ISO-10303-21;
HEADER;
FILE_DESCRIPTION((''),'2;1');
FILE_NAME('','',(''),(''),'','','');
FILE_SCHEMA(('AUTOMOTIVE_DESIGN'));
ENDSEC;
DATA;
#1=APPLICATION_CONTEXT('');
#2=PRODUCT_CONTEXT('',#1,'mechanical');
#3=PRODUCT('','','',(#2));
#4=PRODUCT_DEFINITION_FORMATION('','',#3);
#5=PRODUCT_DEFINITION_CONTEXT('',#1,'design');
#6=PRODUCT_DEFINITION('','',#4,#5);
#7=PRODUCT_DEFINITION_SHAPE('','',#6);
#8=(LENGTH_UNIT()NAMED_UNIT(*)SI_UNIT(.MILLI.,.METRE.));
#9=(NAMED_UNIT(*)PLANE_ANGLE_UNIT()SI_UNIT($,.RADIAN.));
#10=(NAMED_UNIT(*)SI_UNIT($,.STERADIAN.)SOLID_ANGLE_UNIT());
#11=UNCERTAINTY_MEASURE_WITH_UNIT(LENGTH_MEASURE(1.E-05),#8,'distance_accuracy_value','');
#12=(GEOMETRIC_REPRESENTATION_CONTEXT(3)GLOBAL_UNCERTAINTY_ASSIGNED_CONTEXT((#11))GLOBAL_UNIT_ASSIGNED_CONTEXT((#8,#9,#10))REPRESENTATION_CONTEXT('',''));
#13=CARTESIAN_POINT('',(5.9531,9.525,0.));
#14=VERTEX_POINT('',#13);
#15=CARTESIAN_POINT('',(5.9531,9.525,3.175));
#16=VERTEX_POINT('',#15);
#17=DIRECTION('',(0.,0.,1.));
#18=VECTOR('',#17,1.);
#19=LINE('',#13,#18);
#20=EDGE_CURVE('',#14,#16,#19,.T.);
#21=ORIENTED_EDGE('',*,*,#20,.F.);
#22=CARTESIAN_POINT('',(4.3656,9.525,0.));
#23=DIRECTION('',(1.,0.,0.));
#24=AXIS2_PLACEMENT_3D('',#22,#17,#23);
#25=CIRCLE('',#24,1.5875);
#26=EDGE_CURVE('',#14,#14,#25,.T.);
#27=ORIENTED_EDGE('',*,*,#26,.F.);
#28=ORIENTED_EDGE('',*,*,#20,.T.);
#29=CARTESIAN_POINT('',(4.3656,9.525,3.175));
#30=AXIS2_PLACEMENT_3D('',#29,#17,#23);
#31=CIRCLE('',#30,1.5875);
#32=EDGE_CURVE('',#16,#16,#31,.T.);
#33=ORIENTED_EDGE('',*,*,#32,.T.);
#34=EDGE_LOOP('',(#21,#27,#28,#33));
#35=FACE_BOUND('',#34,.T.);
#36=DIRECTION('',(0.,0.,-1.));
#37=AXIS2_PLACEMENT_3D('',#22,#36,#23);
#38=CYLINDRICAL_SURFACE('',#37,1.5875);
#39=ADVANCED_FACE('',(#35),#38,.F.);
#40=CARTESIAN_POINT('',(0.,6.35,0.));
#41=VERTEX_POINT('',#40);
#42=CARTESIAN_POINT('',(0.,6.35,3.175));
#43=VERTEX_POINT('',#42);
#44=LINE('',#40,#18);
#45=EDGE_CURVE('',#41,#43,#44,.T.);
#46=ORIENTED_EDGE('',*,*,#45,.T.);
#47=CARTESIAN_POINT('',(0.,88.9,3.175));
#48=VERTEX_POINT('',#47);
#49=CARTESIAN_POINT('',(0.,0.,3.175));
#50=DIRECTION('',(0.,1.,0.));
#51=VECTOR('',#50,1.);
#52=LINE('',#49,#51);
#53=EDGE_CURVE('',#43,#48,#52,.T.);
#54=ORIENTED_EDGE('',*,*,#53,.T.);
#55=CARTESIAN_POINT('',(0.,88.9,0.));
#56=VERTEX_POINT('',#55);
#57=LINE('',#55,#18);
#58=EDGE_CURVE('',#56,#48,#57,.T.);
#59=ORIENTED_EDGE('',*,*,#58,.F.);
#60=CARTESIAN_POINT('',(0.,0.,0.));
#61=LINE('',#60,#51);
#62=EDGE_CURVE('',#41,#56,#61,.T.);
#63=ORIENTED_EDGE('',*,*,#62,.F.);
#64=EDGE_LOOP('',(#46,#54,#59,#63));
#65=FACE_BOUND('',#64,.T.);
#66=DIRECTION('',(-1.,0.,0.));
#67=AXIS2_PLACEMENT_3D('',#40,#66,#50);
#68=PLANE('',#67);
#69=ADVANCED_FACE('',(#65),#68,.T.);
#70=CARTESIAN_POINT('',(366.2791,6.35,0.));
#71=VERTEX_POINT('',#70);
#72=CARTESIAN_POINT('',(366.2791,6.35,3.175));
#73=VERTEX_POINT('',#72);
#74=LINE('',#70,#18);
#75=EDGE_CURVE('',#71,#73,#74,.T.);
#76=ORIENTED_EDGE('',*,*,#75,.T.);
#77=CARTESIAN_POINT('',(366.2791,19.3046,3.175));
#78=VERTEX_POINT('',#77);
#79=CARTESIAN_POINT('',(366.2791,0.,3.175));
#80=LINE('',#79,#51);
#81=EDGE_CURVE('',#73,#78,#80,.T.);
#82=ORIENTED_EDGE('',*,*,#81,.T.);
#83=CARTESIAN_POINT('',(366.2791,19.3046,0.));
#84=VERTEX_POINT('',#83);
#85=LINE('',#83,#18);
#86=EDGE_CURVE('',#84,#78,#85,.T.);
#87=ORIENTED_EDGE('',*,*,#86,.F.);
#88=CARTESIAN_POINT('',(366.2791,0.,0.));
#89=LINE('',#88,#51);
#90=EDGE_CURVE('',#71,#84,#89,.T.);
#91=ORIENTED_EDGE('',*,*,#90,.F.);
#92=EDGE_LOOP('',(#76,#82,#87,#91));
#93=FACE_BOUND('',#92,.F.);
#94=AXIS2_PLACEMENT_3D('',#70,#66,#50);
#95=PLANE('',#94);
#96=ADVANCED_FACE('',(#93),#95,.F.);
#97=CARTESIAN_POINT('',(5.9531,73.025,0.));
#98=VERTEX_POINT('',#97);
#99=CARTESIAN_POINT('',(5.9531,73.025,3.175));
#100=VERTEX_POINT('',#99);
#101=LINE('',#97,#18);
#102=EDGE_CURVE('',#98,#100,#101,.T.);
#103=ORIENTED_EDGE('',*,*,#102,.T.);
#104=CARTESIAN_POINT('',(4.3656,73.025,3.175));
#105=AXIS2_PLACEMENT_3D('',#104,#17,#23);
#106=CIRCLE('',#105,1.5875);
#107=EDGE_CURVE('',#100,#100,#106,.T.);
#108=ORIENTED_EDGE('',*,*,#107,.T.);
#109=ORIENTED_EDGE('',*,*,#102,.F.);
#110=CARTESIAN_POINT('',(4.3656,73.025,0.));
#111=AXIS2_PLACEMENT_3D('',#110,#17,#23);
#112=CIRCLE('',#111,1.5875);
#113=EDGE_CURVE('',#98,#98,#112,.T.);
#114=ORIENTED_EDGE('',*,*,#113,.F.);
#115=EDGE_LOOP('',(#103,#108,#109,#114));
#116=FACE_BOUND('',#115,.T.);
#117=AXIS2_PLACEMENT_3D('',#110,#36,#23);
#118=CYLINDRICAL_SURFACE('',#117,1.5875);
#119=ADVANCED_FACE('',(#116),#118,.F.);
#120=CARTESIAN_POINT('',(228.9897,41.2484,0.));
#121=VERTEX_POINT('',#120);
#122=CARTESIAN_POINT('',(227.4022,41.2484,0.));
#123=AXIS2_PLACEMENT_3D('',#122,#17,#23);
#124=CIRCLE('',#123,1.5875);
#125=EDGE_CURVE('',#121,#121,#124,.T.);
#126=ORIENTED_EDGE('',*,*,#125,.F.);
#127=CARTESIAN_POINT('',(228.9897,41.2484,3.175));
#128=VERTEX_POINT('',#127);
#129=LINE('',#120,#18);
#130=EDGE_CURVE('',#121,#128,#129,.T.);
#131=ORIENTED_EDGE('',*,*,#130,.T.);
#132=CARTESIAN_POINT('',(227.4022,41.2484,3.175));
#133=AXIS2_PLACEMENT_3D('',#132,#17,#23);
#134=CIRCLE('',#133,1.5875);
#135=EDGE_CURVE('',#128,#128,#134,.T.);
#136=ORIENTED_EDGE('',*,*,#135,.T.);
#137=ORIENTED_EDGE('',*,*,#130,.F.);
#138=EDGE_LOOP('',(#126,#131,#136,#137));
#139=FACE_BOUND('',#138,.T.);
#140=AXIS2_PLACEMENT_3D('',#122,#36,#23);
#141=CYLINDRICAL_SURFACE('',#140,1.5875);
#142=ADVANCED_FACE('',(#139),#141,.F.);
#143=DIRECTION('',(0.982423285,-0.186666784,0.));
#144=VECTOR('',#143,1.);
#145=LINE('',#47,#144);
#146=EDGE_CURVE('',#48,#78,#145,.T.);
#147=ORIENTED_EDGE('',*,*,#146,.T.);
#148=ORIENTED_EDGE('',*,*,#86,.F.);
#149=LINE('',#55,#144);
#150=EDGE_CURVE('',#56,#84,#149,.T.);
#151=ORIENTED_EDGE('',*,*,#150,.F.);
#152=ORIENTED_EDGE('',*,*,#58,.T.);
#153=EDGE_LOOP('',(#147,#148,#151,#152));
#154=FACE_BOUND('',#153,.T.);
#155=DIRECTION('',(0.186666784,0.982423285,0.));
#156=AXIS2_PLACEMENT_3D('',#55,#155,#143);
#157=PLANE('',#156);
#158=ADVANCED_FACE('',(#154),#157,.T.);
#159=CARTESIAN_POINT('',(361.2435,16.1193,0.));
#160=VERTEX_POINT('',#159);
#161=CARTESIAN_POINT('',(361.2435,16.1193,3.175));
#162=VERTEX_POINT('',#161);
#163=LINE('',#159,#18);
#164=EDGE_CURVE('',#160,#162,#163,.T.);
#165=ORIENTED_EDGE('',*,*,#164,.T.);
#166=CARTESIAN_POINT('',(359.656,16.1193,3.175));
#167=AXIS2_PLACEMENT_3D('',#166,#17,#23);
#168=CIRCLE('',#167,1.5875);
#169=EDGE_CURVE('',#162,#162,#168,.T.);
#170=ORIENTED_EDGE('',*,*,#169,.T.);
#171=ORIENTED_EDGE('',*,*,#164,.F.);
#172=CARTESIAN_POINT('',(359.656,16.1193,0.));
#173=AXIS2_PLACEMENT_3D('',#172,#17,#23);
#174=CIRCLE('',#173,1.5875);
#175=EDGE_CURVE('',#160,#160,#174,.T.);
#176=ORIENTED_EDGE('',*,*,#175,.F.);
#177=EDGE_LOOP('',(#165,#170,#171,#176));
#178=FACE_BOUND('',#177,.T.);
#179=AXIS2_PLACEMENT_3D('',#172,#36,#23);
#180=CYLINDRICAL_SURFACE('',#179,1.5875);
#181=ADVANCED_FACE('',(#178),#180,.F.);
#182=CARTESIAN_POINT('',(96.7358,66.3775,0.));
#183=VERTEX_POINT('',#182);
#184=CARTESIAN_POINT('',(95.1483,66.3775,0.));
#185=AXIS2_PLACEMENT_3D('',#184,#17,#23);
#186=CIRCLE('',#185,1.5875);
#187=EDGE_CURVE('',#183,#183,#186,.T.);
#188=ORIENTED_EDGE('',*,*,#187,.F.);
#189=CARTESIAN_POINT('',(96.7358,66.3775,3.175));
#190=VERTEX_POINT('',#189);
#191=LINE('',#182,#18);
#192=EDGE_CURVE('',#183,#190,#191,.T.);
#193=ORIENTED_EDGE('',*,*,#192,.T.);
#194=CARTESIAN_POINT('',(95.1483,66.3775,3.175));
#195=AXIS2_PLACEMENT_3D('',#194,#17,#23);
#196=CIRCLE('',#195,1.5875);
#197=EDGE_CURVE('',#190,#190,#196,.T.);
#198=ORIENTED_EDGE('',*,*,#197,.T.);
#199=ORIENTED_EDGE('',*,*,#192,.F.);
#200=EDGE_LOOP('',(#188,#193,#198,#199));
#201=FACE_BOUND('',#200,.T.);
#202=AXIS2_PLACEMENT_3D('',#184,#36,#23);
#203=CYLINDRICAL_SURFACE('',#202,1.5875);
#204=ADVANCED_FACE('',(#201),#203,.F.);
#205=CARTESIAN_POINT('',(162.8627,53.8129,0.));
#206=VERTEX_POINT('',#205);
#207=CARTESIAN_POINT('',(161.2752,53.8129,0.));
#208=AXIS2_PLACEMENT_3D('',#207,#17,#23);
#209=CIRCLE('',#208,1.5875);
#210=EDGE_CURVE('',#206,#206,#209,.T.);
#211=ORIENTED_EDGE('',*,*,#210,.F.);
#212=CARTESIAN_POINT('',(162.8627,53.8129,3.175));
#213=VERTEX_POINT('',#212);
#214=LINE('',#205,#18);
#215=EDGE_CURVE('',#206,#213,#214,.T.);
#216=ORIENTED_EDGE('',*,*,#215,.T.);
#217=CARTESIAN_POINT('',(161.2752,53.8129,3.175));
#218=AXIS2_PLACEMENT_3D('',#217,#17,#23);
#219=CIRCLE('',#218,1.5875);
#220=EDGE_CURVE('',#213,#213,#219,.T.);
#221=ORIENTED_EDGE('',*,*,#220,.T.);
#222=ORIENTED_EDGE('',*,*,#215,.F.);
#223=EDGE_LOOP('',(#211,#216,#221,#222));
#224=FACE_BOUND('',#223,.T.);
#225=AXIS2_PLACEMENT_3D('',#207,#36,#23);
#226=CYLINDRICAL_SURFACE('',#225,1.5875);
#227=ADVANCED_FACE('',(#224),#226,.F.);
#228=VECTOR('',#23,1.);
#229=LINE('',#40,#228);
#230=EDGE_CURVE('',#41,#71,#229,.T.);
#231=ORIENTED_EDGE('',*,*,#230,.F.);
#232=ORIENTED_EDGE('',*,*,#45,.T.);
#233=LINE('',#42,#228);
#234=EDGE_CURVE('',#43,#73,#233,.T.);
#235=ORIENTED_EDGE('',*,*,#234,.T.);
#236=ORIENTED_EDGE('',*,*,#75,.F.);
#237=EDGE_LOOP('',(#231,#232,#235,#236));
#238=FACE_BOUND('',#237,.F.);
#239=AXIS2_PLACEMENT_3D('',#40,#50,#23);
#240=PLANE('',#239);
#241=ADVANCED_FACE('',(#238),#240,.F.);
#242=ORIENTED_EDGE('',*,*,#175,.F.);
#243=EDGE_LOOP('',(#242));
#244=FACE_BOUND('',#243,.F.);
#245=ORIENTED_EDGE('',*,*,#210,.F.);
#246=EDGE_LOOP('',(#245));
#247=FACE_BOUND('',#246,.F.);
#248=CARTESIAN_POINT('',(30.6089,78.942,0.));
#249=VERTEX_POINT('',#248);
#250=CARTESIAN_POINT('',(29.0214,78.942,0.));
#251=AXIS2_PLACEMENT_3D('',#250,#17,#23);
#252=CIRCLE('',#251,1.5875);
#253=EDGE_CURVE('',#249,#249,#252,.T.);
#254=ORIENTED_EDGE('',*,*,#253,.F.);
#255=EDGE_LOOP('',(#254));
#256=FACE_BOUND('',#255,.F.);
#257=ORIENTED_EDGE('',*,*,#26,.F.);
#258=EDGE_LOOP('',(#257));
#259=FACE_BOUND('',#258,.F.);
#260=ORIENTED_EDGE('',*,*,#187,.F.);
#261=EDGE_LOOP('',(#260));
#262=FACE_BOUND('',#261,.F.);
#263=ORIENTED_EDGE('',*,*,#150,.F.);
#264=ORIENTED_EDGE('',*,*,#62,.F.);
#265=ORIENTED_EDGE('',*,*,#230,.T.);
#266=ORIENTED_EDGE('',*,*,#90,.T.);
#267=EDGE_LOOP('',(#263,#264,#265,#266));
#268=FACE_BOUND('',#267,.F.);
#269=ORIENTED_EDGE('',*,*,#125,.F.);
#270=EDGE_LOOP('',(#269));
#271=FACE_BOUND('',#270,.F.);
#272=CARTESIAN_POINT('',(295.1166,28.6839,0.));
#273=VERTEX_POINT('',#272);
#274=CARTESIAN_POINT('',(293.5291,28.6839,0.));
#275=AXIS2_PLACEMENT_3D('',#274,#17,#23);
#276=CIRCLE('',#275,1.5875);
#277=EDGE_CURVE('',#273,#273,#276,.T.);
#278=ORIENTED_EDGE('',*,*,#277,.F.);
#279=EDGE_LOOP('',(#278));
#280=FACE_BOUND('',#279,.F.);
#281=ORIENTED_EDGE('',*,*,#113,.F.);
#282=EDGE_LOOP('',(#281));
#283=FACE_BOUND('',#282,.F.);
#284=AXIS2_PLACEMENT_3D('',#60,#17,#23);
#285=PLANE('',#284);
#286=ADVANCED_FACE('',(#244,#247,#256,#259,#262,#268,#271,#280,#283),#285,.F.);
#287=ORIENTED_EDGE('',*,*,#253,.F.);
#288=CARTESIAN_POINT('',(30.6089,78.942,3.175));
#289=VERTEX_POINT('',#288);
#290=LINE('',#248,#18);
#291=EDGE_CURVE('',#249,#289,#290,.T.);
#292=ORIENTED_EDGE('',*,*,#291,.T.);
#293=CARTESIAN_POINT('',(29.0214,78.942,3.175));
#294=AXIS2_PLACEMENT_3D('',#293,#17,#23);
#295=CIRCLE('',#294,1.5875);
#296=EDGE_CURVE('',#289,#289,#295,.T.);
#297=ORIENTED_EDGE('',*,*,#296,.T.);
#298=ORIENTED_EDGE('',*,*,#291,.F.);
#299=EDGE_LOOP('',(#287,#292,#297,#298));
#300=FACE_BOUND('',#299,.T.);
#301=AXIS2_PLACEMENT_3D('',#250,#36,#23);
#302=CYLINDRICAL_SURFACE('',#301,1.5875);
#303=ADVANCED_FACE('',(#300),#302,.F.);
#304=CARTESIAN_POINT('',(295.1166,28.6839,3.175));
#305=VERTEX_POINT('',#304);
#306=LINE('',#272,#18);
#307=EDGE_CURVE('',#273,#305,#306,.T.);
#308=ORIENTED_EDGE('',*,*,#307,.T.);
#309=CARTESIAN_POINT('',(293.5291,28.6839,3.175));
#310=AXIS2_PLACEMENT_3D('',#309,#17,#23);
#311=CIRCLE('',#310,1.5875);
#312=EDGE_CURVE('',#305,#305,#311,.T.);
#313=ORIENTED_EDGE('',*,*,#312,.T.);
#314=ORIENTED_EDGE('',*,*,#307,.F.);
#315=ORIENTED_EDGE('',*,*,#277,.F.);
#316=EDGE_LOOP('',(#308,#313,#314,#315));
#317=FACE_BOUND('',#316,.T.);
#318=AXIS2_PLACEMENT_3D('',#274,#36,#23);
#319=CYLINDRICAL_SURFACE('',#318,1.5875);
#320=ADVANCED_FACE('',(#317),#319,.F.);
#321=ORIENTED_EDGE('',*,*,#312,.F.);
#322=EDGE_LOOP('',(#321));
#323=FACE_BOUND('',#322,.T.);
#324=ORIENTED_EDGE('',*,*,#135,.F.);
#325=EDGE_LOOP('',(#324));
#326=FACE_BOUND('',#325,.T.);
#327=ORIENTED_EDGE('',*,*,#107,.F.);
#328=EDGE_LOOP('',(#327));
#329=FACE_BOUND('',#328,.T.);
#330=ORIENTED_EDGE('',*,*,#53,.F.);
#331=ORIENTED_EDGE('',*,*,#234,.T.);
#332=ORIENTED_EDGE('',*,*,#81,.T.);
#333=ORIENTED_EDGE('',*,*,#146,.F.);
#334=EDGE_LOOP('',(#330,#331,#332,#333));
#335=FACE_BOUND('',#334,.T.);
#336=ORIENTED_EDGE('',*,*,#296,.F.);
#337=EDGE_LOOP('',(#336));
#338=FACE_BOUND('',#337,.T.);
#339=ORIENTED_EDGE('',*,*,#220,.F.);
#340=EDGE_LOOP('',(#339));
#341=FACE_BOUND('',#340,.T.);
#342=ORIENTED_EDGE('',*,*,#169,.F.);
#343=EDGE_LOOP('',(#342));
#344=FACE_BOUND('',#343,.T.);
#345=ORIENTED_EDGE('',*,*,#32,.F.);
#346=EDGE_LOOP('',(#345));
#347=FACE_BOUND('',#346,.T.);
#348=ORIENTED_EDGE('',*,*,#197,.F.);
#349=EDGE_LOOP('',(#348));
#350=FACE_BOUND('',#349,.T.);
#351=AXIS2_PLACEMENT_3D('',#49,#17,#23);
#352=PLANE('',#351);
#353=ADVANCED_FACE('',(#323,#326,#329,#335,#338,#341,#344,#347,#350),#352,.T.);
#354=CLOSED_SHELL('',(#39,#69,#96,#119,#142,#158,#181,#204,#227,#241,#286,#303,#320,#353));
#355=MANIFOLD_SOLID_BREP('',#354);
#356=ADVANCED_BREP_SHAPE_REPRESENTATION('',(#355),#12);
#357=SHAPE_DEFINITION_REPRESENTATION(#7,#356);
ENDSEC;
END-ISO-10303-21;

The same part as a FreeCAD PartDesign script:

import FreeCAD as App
import Part
import Sketcher

V = App.Vector
Q = App.Units.Quantity

doc = App.newDocument("Part")
params = doc.addObject("Spreadsheet::Sheet", "Params")
for row, (alias, value) in enumerate([
    ("sketch1_diameter", "0.125 in"),
    ("pad1_length", "0.125 in"),
], start=1):
    params.set(f"A{row}", alias)
    params.set(f"B{row}", "=" + value)
    params.setAlias(f"B{row}", alias)

body = doc.addObject("PartDesign::Body", "Body")

# Sketch on XY plane
sketch1 = body.newObject("Sketcher::SketchObject", "Sketch")
sketch1.AttachmentSupport = (doc.getObject("XY_Plane"), [""])
sketch1.MapMode = "FlatFace"
sketch1.addGeometry([
    Part.LineSegment(V(0, 88.9, 0), V(0, 6.3, 0)),  # 0
    Part.LineSegment(V(0, 6.3, 0), V(366.3, 6.3, 0)),  # 1
    Part.LineSegment(V(366.3, 6.3, 0), V(366.3, 19.3, 0)),  # 2
    Part.LineSegment(V(366.3, 19.3, 0), V(0, 88.9, 0)),  # 3
    Part.Circle(V(4.4, 9.5, 0), V(0, 0, 1), 1.6),  # 4
    Part.Circle(V(359.7, 16.1, 0), V(0, 0, 1), 1.6),  # 5
    Part.Circle(V(227.4, 41.2, 0), V(0, 0, 1), 1.6),  # 6
    Part.Circle(V(293.5, 28.7, 0), V(0, 0, 1), 1.6),  # 7
    Part.Circle(V(161.3, 53.8, 0), V(0, 0, 1), 1.6),  # 8
    Part.Circle(V(95.1, 66.4, 0), V(0, 0, 1), 1.6),  # 9
    Part.Circle(V(4.4, 73, 0), V(0, 0, 1), 1.6),  # 10
    Part.Circle(V(29, 78.9, 0), V(0, 0, 1), 1.6),  # 11
], False)
sketch1.addConstraint([
    Sketcher.Constraint("Coincident", 0, 2, 1, 1),
    Sketcher.Constraint("Coincident", 1, 2, 2, 1),
    Sketcher.Constraint("Coincident", 2, 2, 3, 1),
    Sketcher.Constraint("Coincident", 3, 2, 0, 1),
    Sketcher.Constraint("Vertical", 0),
    Sketcher.Constraint("Horizontal", 1),
    Sketcher.Constraint("Vertical", 2),
    Sketcher.Constraint("Equal", 4, 5),
    Sketcher.Constraint("Equal", 5, 6),
    Sketcher.Constraint("Equal", 6, 7),
    Sketcher.Constraint("Equal", 7, 8),
    Sketcher.Constraint("Equal", 8, 9),
    Sketcher.Constraint("Equal", 9, 10),
    Sketcher.Constraint("Equal", 10, 11),
    Sketcher.Constraint("PointOnObject", 0, 2, -2),
    Sketcher.Constraint("Vertical", 4, 3, 10, 3),
    Sketcher.Constraint("DistanceY", -1, 1, 3, 2, Q("3.5 in")),
    Sketcher.Constraint("DistanceY", -1, 1, 0, 2, Q("0.25 in")),
    Sketcher.Constraint("Diameter", 4, Q("0.125 in")),
    Sketcher.Constraint("DistanceY", 4, 3, 10, 3, Q("2.5 in")),
    Sketcher.Constraint("DistanceX", -1, 1, 4, 3, Q("0.171874 in")),
    Sketcher.Constraint("DistanceY", -1, 1, 4, 3, Q("0.375 in")),
    Sketcher.Constraint("DistanceX", -1, 1, 9, 3, Q("3.746 in")),
    Sketcher.Constraint("DistanceY", 5, 3, 8, 3, Q("1.484 in")),
    Sketcher.Constraint("DistanceY", 7, 3, 9, 3, Q("1.484 in")),
    Sketcher.Constraint("DistanceY", 6, 3, 11, 3, Q("1.484 in")),
    Sketcher.Constraint("DistanceX", 1, 1, 1, 2, Q("366.279 mm")),
    Sketcher.Constraint("DistanceY", 2, 1, 2, 2, Q("12.9546 mm")),
    Sketcher.Constraint("DistanceX", 4, 3, 5, 3, Q("13.9878 in")),
    Sketcher.Constraint("DistanceX", 4, 3, 7, 3, Q("11.3844 in")),
    Sketcher.Constraint("DistanceX", 10, 3, 11, 3, Q("0.9707 in")),
    Sketcher.Constraint("DistanceX", 6, 3, 1, 2, Q("5.4676 in")),
    Sketcher.Constraint("DistanceY", 5, 3, 2, 2, Q("0.1254 in")),
    Sketcher.Constraint("DistanceY", -1, 1, 6, 3, Q("41.2484 mm")),
    Sketcher.Constraint("DistanceY", -1, 1, 7, 3, Q("1.1292913 in")),
    Sketcher.Constraint("DistanceX", -1, 1, 8, 3, Q("161.2752 mm")),
])
sketch1.setExpression("Constraints[18]", "Params.sketch1_diameter")
pad1 = body.newObject("PartDesign::Pad", "Pad")
pad1.Profile = sketch1
pad1.setExpression("Length", "Params.pad1_length")

doc.recompute()
